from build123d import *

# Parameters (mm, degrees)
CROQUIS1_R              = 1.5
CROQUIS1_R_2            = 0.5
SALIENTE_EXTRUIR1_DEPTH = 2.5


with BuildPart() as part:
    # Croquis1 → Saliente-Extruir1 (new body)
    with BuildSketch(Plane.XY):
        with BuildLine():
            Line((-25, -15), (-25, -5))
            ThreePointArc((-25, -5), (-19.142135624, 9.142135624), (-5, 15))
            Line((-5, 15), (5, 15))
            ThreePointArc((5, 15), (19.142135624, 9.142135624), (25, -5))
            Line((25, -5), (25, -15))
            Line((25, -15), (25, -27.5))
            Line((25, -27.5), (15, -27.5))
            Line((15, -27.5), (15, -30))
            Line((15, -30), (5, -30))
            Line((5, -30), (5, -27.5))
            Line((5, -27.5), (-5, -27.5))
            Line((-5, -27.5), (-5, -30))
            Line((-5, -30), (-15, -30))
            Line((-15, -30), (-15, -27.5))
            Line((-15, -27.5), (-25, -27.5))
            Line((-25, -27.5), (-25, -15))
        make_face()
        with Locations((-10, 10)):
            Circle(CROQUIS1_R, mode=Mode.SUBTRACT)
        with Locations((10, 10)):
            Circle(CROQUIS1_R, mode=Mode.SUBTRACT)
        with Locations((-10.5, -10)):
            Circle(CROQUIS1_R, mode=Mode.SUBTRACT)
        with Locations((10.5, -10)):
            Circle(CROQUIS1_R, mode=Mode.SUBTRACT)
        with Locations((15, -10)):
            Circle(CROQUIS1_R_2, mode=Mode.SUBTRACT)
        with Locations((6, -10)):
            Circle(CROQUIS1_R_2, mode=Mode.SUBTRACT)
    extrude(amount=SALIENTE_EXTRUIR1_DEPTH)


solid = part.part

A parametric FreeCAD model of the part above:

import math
import FreeCAD as App
import Part
import Sketcher

V = App.Vector
Q = App.Units.Quantity

doc = App.newDocument("Part")
body = doc.addObject("PartDesign::Body", "Body")

sketch1 = body.newObject("Sketcher::SketchObject", "Sketch")
sketch1.AttachmentSupport = (doc.getObject("XY_Plane"), [""])
sketch1.MapMode = "FlatFace"
sketch1.addGeometry([
    Part.ArcOfCircle(Part.Circle(V(-5, -5, 0), V(0, 0, 1), 20), math.radians(90), math.radians(180)),
    Part.LineSegment(V(-25, -5, 0), V(-25, -27.5, 0)),
    Part.LineSegment(V(-25, -27.5, 0), V(-15, -27.5, 0)),
    Part.LineSegment(V(-15, -27.5, 0), V(-15, -30, 0)),
    Part.LineSegment(V(-15, -30, 0), V(-5, -30, 0)),
    Part.LineSegment(V(-5, -30, 0), V(-5, -27.5, 0)),
    Part.LineSegment(V(-5, -27.5, 0), V(5, -27.5, 0)),
    Part.LineSegment(V(5, -27.5, 0), V(5, -30, 0)),
    Part.LineSegment(V(5, -30, 0), V(15, -30, 0)),
    Part.LineSegment(V(15, -30, 0), V(15, -27.5, 0)),
    Part.LineSegment(V(15, -27.5, 0), V(25, -27.5, 0)),
    Part.LineSegment(V(25, -27.5, 0), V(25, -5, 0)),
    Part.ArcOfCircle(Part.Circle(V(5, -5, 0), V(0, 0, 1), 20), math.radians(0), math.radians(90)),
    Part.LineSegment(V(5, 15, 0), V(-5, 15, 0)),
    Part.Circle(V(15, -10, 0), V(0, 0, 1), 0.5),
    Part.Circle(V(10.5, -10, 0), V(0, 0, 1), 1.5),
    Part.Circle(V(6, -10, 0), V(0, 0, 1), 0.5),
    Part.Circle(V(-10.5, -10, 0), V(0, 0, 1), 1.5),
    Part.Circle(V(10, 10, 0), V(0, 0, 1), 1.5),
    Part.Circle(V(-10, 10, 0), V(0, 0, 1), 1.5),
], False)
sketch1.addConstraint([
    Sketcher.Constraint("Tangent", 0, 2, 1, 1),
    Sketcher.Constraint("Coincident", 1, 2, 2, 1),
    Sketcher.Constraint("Coincident", 2, 2, 3, 1),
    Sketcher.Constraint("Coincident", 3, 2, 4, 1),
    Sketcher.Constraint("Coincident", 4, 2, 5, 1),
    Sketcher.Constraint("Coincident", 5, 2, 6, 1),
    Sketcher.Constraint("Coincident", 6, 2, 7, 1),
    Sketcher.Constraint("Coincident", 7, 2, 8, 1),
    Sketcher.Constraint("Coincident", 8, 2, 9, 1),
    Sketcher.Constraint("Coincident", 9, 2, 10, 1),
    Sketcher.Constraint("Coincident", 10, 2, 11, 1),
    Sketcher.Constraint("Tangent", 11, 2, 12, 1),
    Sketcher.Constraint("Tangent", 12, 2, 13, 1),
    Sketcher.Constraint("Tangent", 13, 2, 0, 1),
    Sketcher.Constraint("Vertical", 1),
    Sketcher.Constraint("Horizontal", 2),
    Sketcher.Constraint("Vertical", 3),
    Sketcher.Constraint("Horizontal", 4),
    Sketcher.Constraint("Vertical", 5),
    Sketcher.Constraint("Horizontal", 6),
    Sketcher.Constraint("Vertical", 7),
    Sketcher.Constraint("Horizontal", 8),
    Sketcher.Constraint("Vertical", 9),
    Sketcher.Constraint("Horizontal", 10),
    Sketcher.Constraint("Vertical", 11),
    Sketcher.Constraint("Horizontal", 13),
    Sketcher.Constraint("Equal", 0, 12),
    Sketcher.Constraint("Equal", 14, 16),
    Sketcher.Constraint("Equal", 15, 17),
    Sketcher.Constraint("Equal", 17, 18),
    Sketcher.Constraint("Equal", 18, 19),
    Sketcher.Constraint("Symmetric", 15, 3, 17, 3, -2),
    Sketcher.Constraint("Symmetric", 18, 3, 19, 3, -2),
    Sketcher.Constraint("Symmetric", 4, 2, 7, 2, -2),
    Sketcher.Constraint("Symmetric", 2, 2, 9, 2, -2),
    Sketcher.Constraint("Horizontal", 14, 3, 15, 3),
    Sketcher.Constraint("Horizontal", 15, 3, 16, 3),
    Sketcher.Constraint("Horizontal", 2, 2, 5, 2),
    Sketcher.Constraint("Vertical", 0, 3, 4, 2),
    Sketcher.Constraint("Vertical", 12, 3, 6, 2),
    Sketcher.Constraint("Vertical", 14, 3, 8, 2),
    Sketcher.Constraint("Equal", 2, 4),
    Sketcher.Constraint("Equal", 4, 6),
    Sketcher.Constraint("Diameter", 14, Q("1 mm")),
    Sketcher.Constraint("Diameter", 15, Q("3 mm")),
    Sketcher.Constraint("Radius", 0, Q("20 mm")),
    Sketcher.Constraint("DistanceY", 1, 2, 1, 1, Q("22.5 mm")),
    Sketcher.Constraint("DistanceY", 3, 2, 3, 1, Q("2.5 mm")),
    Sketcher.Constraint("DistanceY", 0, 3, -1, 1, Q("5 mm")),
    Sketcher.Constraint("DistanceY", 14, 3, -1, 1, Q("10 mm")),
    Sketcher.Constraint("DistanceX", -1, 1, 16, 3, Q("6 mm")),
    Sketcher.Constraint("DistanceX", -1, 1, 18, 3, Q("10 mm")),
    Sketcher.Constraint("DistanceY", -1, 1, 18, 3, Q("10 mm")),
    Sketcher.Constraint("DistanceX", 17, 3, 15, 3, Q("21 mm")),
])
pad1 = body.newObject("PartDesign::Pad", "Pad")
pad1.Profile = sketch1
pad1.Length = 2.5

doc.recompute()
